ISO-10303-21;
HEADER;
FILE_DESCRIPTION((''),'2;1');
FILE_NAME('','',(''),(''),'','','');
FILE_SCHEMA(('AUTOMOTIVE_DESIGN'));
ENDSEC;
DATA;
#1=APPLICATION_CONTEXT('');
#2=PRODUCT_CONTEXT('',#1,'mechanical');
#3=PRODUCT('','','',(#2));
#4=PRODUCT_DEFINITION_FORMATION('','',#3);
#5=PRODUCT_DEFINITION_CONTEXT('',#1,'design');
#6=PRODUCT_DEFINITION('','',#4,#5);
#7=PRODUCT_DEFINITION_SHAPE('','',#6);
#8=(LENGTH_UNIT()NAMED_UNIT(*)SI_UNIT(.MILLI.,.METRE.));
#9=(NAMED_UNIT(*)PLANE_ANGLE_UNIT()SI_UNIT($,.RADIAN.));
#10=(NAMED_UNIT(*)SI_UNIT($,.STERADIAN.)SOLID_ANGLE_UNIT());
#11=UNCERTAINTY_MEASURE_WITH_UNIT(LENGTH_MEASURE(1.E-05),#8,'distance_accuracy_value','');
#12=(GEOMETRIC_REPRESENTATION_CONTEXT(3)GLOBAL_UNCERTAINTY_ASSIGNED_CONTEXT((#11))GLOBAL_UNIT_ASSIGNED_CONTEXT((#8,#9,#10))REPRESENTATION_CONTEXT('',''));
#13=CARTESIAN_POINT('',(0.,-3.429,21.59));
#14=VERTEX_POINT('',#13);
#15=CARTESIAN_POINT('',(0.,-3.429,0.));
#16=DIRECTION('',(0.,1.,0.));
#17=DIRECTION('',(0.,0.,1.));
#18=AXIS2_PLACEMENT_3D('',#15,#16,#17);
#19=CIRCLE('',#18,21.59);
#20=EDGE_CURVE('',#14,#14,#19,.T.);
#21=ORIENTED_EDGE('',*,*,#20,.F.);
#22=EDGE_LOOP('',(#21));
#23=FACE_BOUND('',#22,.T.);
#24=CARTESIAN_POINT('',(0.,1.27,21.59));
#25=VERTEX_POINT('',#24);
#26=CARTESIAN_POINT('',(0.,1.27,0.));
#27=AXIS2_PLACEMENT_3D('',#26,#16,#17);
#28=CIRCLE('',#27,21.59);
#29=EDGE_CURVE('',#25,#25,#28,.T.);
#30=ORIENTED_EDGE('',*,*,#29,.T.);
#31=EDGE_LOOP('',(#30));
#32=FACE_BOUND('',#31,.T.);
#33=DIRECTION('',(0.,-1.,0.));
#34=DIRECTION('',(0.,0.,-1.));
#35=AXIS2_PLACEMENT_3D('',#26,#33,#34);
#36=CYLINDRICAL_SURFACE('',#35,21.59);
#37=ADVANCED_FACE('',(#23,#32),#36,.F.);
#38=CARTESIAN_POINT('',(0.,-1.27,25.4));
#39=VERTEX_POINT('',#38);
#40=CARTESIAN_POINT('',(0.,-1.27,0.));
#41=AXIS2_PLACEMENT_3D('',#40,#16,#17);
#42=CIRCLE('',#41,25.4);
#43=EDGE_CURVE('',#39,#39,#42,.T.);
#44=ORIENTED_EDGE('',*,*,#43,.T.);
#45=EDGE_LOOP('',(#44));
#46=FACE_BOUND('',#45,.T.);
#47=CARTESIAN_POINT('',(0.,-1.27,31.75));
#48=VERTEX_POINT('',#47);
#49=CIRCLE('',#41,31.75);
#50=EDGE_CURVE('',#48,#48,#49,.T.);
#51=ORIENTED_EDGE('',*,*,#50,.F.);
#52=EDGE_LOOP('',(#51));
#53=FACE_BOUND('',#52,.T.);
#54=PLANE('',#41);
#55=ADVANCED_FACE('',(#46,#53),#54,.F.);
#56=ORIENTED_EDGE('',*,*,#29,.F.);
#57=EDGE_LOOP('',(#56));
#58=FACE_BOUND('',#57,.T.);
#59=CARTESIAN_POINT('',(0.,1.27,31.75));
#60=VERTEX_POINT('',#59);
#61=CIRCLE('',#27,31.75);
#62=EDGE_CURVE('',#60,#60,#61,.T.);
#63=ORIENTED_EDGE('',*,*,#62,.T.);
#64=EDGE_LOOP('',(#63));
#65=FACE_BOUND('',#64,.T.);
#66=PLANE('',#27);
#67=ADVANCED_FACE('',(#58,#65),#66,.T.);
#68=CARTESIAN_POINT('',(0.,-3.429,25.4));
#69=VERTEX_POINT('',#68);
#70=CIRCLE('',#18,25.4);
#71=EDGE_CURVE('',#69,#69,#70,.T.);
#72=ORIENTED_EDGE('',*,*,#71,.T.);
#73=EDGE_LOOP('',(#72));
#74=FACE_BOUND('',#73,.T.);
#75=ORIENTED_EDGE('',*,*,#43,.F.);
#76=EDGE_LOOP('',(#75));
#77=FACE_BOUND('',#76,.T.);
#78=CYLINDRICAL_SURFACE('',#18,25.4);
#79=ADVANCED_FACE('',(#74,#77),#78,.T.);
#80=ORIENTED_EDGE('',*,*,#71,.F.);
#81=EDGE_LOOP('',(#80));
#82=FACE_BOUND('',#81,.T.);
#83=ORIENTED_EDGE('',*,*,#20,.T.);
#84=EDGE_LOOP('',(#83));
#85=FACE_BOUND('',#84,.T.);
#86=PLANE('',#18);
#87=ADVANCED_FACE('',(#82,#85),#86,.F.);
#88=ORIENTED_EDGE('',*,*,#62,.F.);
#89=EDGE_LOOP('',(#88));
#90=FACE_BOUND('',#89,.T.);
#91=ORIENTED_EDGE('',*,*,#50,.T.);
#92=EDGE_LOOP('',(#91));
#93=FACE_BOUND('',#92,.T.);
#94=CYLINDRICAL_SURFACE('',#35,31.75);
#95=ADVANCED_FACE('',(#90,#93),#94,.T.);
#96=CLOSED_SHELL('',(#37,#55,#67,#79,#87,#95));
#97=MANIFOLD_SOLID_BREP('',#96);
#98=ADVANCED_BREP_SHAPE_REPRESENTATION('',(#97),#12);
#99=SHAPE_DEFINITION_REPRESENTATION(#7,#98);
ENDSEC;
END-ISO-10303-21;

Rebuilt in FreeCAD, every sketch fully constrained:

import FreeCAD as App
import Part
import Sketcher
from FreeCAD import Vector
Q = App.Units.Quantity

doc = App.newDocument("Part")
body = doc.addObject("PartDesign::Body", "Body")

# Sketch on XZ plane
sketch1 = body.newObject("Sketcher::SketchObject", "Sketch")
sketch1.AttachmentSupport = (doc.getObject("XZ_Plane"), [""])
sketch1.MapMode = "FlatFace"
sketch1.addGeometry(Part.Circle(Vector(0, 0, 0), Vector(0, 0, 1), 32), False)
sketch1.addGeometry(Part.Circle(Vector(0, 0, 0), Vector(0, 0, 1), 22), False)
sketch1.addConstraint(Sketcher.Constraint("Coincident", 0, 3, -1, 1))
sketch1.addConstraint(Sketcher.Constraint("Coincident", 1, 3, -1, 1))
sketch1.addConstraint(Sketcher.Constraint("Diameter", 0, Q("2.5 in")))
sketch1.addConstraint(Sketcher.Constraint("Diameter", 1, Q("1.7 in")))
pad1 = body.newObject("PartDesign::Pad", "Pad")
pad1.Profile = sketch1
pad1.Length = Q("0.1 in")
pad1.Midplane = True

# Sketch on XZ plane
sketch2 = body.newObject("Sketcher::SketchObject", "Sketch001")
sketch2.AttachmentSupport = (doc.getObject("XZ_Plane"), [""])
sketch2.MapMode = "FlatFace"
sketch2.AttachmentOffset = App.Placement(Vector(0, 0, 0.05 * 25.4), App.Rotation())
sketch2.addGeometry(Part.Circle(Vector(0, 0, 0), Vector(0, 0, 1), 25), False)
sketch2.addGeometry(Part.Circle(Vector(0, 0, 0), Vector(0, 0, 1), 22), False)
sketch2.addConstraint(Sketcher.Constraint("Coincident", 0, 3, -1, 1))
sketch2.addConstraint(Sketcher.Constraint("Coincident", 1, 3, -1, 1))
sketch2.addConstraint(Sketcher.Constraint("Diameter", 0, Q("2 in")))
sketch2.addConstraint(Sketcher.Constraint("Diameter", 1, Q("1.7 in")))
pad2 = body.newObject("PartDesign::Pad", "Pad001")
pad2.Profile = sketch2
pad2.Length = Q("0.085 in")

doc.recompute()
